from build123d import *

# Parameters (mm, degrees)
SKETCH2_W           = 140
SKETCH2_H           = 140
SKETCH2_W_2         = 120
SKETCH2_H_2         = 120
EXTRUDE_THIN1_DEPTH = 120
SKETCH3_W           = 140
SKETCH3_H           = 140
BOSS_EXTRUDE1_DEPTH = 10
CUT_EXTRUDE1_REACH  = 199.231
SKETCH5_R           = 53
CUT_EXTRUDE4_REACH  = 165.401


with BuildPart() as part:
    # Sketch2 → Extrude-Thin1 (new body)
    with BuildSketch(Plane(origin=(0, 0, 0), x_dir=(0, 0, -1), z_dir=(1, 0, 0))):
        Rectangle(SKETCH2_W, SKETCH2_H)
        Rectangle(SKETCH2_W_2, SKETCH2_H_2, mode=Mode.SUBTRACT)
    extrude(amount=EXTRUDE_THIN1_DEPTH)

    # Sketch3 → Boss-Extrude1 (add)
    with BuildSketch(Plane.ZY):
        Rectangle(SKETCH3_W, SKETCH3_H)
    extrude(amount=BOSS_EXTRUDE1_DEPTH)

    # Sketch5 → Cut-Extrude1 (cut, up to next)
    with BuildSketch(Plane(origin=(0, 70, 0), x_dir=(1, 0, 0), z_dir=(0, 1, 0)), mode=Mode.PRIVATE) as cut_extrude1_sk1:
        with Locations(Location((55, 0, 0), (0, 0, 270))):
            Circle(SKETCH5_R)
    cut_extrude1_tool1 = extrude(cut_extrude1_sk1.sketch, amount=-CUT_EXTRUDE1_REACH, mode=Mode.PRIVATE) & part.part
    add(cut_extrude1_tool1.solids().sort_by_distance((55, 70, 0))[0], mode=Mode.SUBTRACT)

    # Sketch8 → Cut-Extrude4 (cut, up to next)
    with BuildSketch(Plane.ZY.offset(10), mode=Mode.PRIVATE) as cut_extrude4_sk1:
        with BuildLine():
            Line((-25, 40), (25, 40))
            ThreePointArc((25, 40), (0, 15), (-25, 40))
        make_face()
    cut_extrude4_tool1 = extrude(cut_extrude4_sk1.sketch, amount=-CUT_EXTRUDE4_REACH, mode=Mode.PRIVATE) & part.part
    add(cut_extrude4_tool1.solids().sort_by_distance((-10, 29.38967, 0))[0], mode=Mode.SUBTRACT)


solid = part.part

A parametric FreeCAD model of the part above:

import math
import FreeCAD as App
import Part
import Sketcher
from FreeCAD import Vector

doc = App.newDocument("Part")
params = doc.addObject("Spreadsheet::Sheet", "Params")
for row, (alias, value) in enumerate([
    ("sketch1_width", "140 mm"),
    ("sketch1_width2", "120 mm"),
    ("pad1_length", "120 mm"),
    ("sketch2_width", "140 mm"),
    ("pad2_length", "10 mm"),
    ("sketch3_diameter", "106 mm"),
    ("sketch4_radius", "25 mm"),
], start=1):
    params.set(f"A{row}", alias)
    params.set(f"B{row}", "=" + value)
    params.setAlias(f"B{row}", alias)

body = doc.addObject("PartDesign::Body", "Body")

# Sketch on YZ plane
sketch1 = body.newObject("Sketcher::SketchObject", "Sketch")
sketch1.AttachmentSupport = (doc.getObject("YZ_Plane"), [""])
sketch1.MapMode = "FlatFace"
sketch1.addGeometry([
    Part.LineSegment(Vector(70, 70, 0), Vector(-70, 70, 0)),  # 0
    Part.LineSegment(Vector(-70, 70, 0), Vector(-70, -70, 0)),  # 1
    Part.LineSegment(Vector(-70, -70, 0), Vector(70, -70, 0)),  # 2
    Part.LineSegment(Vector(70, -70, 0), Vector(70, 70, 0)),  # 3
    Part.LineSegment(Vector(-60, -60, 0), Vector(-60, 60, 0)),  # 4
    Part.LineSegment(Vector(-60, 60, 0), Vector(60, 60, 0)),  # 5
    Part.LineSegment(Vector(60, 60, 0), Vector(60, -60, 0)),  # 6
    Part.LineSegment(Vector(60, -60, 0), Vector(-60, -60, 0)),  # 7
], False)
sketch1.addConstraint([
    Sketcher.Constraint("Coincident", 0, 2, 1, 1),
    Sketcher.Constraint("Coincident", 1, 2, 2, 1),
    Sketcher.Constraint("Coincident", 2, 2, 3, 1),
    Sketcher.Constraint("Coincident", 3, 2, 0, 1),
    Sketcher.Constraint("Coincident", 4, 2, 5, 1),
    Sketcher.Constraint("Coincident", 5, 2, 6, 1),
    Sketcher.Constraint("Coincident", 6, 2, 7, 1),
    Sketcher.Constraint("Coincident", 7, 2, 4, 1),
    Sketcher.Constraint("Horizontal", 0),
    Sketcher.Constraint("Vertical", 1),
    Sketcher.Constraint("Horizontal", 2),
    Sketcher.Constraint("Vertical", 3),
    Sketcher.Constraint("Vertical", 4),
    Sketcher.Constraint("Horizontal", 5),
    Sketcher.Constraint("Vertical", 6),
    Sketcher.Constraint("Horizontal", 7),
    Sketcher.Constraint("Symmetric", 0, 2, 2, 2, -1, 1),
    Sketcher.Constraint("Symmetric", 4, 2, 6, 2, -1, 1),
    Sketcher.Constraint("Equal", 2, 1),
    Sketcher.Constraint("Equal", 7, 4),
    Sketcher.Constraint("DistanceX", 0, 2, 0, 1, 140.0),
    Sketcher.Constraint("DistanceX", 5, 1, 5, 2, 120.0),
])
sketch1.setExpression("Constraints[20]", "Params.sketch1_width")
sketch1.setExpression("Constraints[21]", "Params.sketch1_width2")
pad1 = body.newObject("PartDesign::Pad", "Pad")
pad1.Profile = sketch1
pad1.setExpression("Length", "Params.pad1_length")

# Sketch on YZ plane
sketch2 = body.newObject("Sketcher::SketchObject", "Sketch001")
sketch2.AttachmentSupport = (doc.getObject("YZ_Plane"), [""])
sketch2.MapMode = "FlatFace"
sketch2.addGeometry([
    Part.LineSegment(Vector(70, -70, 0), Vector(-70, -70, 0)),
    Part.LineSegment(Vector(-70, -70, 0), Vector(-70, 70, 0)),
    Part.LineSegment(Vector(-70, 70, 0), Vector(70, 70, 0)),
    Part.LineSegment(Vector(70, 70, 0), Vector(70, -70, 0)),
], False)
sketch2.addConstraint([
    Sketcher.Constraint("Coincident", 0, 2, 1, 1),
    Sketcher.Constraint("Coincident", 1, 2, 2, 1),
    Sketcher.Constraint("Coincident", 2, 2, 3, 1),
    Sketcher.Constraint("Coincident", 3, 2, 0, 1),
    Sketcher.Constraint("Horizontal", 0),
    Sketcher.Constraint("Vertical", 1),
    Sketcher.Constraint("Horizontal", 2),
    Sketcher.Constraint("Vertical", 3),
    Sketcher.Constraint("Symmetric", 0, 2, 2, 2, -1, 1),
    Sketcher.Constraint("Equal", 2, 1),
    Sketcher.Constraint("DistanceX", 0, 2, 0, 1, 140.0),
])
sketch2.setExpression("Constraints[10]", "Params.sketch2_width")
pad2 = body.newObject("PartDesign::Pad", "Pad001")
pad2.Profile = sketch2
pad2.setExpression("Length", "Params.pad2_length")
pad2.Reversed = True

# Sketch on XZ plane
sketch3 = body.newObject("Sketcher::SketchObject", "Sketch002")
sketch3.AttachmentSupport = (doc.getObject("XZ_Plane"), [""])
sketch3.MapMode = "FlatFace"
sketch3.AttachmentOffset = App.Placement(Vector(0, 0, -70), App.Rotation())
sketch3.addGeometry(Part.Circle(Vector(55, 0, 0), Vector(0, 0, 1), 53), False)
sketch3.addConstraint([
    Sketcher.Constraint("PointOnObject", 0, 3, -1),
    Sketcher.Constraint("Diameter", 0, 106.0),
    Sketcher.Constraint("DistanceX", -1, 1, 0, 3, 55.0),
])
sketch3.setExpression("Constraints[1]", "Params.sketch3_diameter")
pocket1 = body.newObject("PartDesign::Pocket", "Pocket")
pocket1.Profile = sketch3
pocket1.Type = "UpToFirst"
pocket1.Reversed = True

# Sketch on YZ plane
sketch4 = body.newObject("Sketcher::SketchObject", "Sketch003")
sketch4.AttachmentSupport = (doc.getObject("YZ_Plane"), [""])
sketch4.MapMode = "FlatFace"
sketch4.AttachmentOffset = App.Placement(Vector(0, 0, -10), App.Rotation())
sketch4.addGeometry([
    Part.LineSegment(Vector(40, 25, 0), Vector(40, -25, 0)),
    Part.ArcOfCircle(Part.Circle(Vector(40, 0, 0), Vector(0, 0, 1), 25), math.radians(90), math.radians(270)),
], False)
sketch4.addConstraint([
    Sketcher.Constraint("Coincident", 0, 1, 1, 1),
    Sketcher.Constraint("Coincident", 1, 2, 0, 2),
    Sketcher.Constraint("Vertical", 0),
    Sketcher.Constraint("PointOnObject", 1, 3, -1),
    Sketcher.Constraint("Vertical", 1, 3, 0, 1),
    Sketcher.Constraint("Radius", 1, 25.0),
    Sketcher.Constraint("DistanceX", -1, 1, 1, 3, 40.0),
])
sketch4.setExpression("Constraints[5]", "Params.sketch4_radius")
pocket2 = body.newObject("PartDesign::Pocket", "Pocket001")
pocket2.Profile = sketch4
pocket2.Type = "UpToFirst"
pocket2.Reversed = True

doc.recompute()
